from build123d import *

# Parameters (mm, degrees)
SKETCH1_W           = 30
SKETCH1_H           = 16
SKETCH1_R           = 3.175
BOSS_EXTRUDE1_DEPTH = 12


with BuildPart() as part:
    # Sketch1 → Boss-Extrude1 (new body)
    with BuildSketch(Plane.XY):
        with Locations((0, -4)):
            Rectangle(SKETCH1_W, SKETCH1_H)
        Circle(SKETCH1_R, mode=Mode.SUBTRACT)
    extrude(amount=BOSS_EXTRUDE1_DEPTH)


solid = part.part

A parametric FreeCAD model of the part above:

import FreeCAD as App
import Part
import Sketcher

V = App.Vector


def add_polygon(sketch, points):
    """Adds a closed chain of lines whose ends are joined by coincident constraints."""
    first, n = sketch.GeometryCount, len(points)
    for a, b in zip(points, points[1:] + points[:1]):
        sketch.addGeometry(Part.LineSegment(App.Vector(*a, 0), App.Vector(*b, 0)), False)
    for i in range(n):
        sketch.addConstraint(Sketcher.Constraint("Coincident", first + i, 2, first + (i + 1) % n, 1))

doc = App.newDocument("Part")
body = doc.addObject("PartDesign::Body", "Body")

# Sketch on XY plane
sketch1 = body.newObject("Sketcher::SketchObject", "Sketch")
sketch1.AttachmentSupport = (doc.getObject("XY_Plane"), [""])
sketch1.MapMode = "FlatFace"
add_polygon(sketch1, [(-15, 4), (-15, -12), (15, -12), (15, 4)])  # lines 0-3
sketch1.addGeometry(Part.Circle(V(0, 0, 0), V(0, 0, 1), 3.175), False)  # 4
sketch1.addConstraint(Sketcher.Constraint("Vertical", 0))
sketch1.addConstraint(Sketcher.Constraint("Horizontal", 1))
sketch1.addConstraint(Sketcher.Constraint("Vertical", 2))
sketch1.addConstraint(Sketcher.Constraint("Horizontal", 3))
sketch1.addConstraint(Sketcher.Constraint("Coincident", 4, 3, -1, 1))
sketch1.addConstraint(Sketcher.Constraint("Diameter", 4, 6.35))
sketch1.addConstraint(Sketcher.Constraint("DistanceX", 1, 1, 1, 2, 30.0))
sketch1.addConstraint(Sketcher.Constraint("DistanceY", 0, 2, 0, 1, 16.0))
sketch1.addConstraint(Sketcher.Constraint("DistanceX", 0, 2, -1, 1, 15.0))
sketch1.addConstraint(Sketcher.Constraint("DistanceY", 0, 2, -1, 1, 12.0))
pad1 = body.newObject("PartDesign::Pad", "Pad")
pad1.Profile = sketch1
pad1.Length = 12

doc.recompute()
